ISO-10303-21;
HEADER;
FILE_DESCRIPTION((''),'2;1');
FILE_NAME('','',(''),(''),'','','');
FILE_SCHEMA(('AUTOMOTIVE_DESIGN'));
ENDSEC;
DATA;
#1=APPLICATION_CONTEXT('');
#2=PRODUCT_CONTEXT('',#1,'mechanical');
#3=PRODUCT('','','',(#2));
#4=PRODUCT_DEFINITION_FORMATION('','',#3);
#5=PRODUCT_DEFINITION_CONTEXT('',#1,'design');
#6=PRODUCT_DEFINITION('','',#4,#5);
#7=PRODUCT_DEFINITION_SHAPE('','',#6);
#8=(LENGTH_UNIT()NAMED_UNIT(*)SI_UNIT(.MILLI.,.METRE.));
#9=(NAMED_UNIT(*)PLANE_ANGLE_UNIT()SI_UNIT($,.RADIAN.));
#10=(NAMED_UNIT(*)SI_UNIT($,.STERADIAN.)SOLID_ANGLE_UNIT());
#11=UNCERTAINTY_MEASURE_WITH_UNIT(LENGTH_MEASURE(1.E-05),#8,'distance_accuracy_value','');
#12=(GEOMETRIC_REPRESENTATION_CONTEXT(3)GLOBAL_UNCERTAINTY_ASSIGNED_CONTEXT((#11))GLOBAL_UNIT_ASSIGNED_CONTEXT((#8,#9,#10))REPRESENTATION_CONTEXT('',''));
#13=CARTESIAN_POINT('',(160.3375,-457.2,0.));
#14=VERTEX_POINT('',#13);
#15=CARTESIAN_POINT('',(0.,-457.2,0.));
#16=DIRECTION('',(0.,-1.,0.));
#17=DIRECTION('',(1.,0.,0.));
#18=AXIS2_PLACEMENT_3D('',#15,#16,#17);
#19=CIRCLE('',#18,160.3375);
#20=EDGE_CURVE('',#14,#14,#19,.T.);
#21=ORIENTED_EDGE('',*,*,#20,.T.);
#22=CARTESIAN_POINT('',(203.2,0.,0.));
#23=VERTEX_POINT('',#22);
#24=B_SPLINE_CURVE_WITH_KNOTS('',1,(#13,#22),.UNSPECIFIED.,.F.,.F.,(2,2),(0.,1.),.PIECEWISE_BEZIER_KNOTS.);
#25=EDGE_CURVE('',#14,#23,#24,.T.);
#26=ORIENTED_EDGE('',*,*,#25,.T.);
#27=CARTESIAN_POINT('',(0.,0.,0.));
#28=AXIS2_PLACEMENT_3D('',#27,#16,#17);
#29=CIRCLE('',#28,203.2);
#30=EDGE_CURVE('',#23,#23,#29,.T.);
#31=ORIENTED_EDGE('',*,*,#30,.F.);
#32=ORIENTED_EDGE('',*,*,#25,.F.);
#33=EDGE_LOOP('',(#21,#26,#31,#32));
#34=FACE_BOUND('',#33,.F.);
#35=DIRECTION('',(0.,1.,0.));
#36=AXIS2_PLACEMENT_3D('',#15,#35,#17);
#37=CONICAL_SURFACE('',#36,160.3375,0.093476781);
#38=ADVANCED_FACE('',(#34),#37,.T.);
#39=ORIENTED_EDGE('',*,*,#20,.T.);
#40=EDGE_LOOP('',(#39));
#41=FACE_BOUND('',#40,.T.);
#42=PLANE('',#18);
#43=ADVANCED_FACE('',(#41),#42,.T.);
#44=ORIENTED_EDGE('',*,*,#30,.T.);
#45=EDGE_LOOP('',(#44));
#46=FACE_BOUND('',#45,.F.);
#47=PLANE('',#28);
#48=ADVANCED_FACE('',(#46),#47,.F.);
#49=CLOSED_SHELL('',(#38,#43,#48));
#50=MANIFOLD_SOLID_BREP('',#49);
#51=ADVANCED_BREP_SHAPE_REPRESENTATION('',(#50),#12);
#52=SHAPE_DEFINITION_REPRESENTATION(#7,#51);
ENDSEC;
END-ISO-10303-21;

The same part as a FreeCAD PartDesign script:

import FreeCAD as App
import Part
import Sketcher

V = App.Vector
Q = App.Units.Quantity

doc = App.newDocument("Part")
body = doc.addObject("PartDesign::Body", "Body")

# Sketch on XZ plane
sketch1 = body.newObject("Sketcher::SketchObject", "Sketch")
sketch1.AttachmentSupport = (doc.getObject("XZ_Plane"), [""])
sketch1.MapMode = "FlatFace"
sketch1.AttachmentOffset = App.Placement(V(0, 0, 18 * 25.4), App.Rotation())
sketch1.addGeometry(Part.Circle(V(0, 0, 0), V(0, 0, 1), 160), False)
sketch1.addConstraint(Sketcher.Constraint("Coincident", 0, 3, -1, 1))
sketch1.addConstraint(Sketcher.Constraint("Diameter", 0, Q("12.625 in")))

# Sketch on XZ plane
sketch2 = body.newObject("Sketcher::SketchObject", "Sketch001")
sketch2.AttachmentSupport = (doc.getObject("XZ_Plane"), [""])
sketch2.MapMode = "FlatFace"
sketch2.addGeometry(Part.Circle(V(0, 0, 0), V(0, 0, 1), 203), False)
sketch2.addConstraint(Sketcher.Constraint("Coincident", 0, 3, -1, 1))
sketch2.addConstraint(Sketcher.Constraint("Diameter", 0, Q("16 in")))

additiveloft = body.newObject("PartDesign::AdditiveLoft", "AdditiveLoft")
additiveloft.Profile = sketch1
additiveloft.Sections = [sketch2]

doc.recompute()
